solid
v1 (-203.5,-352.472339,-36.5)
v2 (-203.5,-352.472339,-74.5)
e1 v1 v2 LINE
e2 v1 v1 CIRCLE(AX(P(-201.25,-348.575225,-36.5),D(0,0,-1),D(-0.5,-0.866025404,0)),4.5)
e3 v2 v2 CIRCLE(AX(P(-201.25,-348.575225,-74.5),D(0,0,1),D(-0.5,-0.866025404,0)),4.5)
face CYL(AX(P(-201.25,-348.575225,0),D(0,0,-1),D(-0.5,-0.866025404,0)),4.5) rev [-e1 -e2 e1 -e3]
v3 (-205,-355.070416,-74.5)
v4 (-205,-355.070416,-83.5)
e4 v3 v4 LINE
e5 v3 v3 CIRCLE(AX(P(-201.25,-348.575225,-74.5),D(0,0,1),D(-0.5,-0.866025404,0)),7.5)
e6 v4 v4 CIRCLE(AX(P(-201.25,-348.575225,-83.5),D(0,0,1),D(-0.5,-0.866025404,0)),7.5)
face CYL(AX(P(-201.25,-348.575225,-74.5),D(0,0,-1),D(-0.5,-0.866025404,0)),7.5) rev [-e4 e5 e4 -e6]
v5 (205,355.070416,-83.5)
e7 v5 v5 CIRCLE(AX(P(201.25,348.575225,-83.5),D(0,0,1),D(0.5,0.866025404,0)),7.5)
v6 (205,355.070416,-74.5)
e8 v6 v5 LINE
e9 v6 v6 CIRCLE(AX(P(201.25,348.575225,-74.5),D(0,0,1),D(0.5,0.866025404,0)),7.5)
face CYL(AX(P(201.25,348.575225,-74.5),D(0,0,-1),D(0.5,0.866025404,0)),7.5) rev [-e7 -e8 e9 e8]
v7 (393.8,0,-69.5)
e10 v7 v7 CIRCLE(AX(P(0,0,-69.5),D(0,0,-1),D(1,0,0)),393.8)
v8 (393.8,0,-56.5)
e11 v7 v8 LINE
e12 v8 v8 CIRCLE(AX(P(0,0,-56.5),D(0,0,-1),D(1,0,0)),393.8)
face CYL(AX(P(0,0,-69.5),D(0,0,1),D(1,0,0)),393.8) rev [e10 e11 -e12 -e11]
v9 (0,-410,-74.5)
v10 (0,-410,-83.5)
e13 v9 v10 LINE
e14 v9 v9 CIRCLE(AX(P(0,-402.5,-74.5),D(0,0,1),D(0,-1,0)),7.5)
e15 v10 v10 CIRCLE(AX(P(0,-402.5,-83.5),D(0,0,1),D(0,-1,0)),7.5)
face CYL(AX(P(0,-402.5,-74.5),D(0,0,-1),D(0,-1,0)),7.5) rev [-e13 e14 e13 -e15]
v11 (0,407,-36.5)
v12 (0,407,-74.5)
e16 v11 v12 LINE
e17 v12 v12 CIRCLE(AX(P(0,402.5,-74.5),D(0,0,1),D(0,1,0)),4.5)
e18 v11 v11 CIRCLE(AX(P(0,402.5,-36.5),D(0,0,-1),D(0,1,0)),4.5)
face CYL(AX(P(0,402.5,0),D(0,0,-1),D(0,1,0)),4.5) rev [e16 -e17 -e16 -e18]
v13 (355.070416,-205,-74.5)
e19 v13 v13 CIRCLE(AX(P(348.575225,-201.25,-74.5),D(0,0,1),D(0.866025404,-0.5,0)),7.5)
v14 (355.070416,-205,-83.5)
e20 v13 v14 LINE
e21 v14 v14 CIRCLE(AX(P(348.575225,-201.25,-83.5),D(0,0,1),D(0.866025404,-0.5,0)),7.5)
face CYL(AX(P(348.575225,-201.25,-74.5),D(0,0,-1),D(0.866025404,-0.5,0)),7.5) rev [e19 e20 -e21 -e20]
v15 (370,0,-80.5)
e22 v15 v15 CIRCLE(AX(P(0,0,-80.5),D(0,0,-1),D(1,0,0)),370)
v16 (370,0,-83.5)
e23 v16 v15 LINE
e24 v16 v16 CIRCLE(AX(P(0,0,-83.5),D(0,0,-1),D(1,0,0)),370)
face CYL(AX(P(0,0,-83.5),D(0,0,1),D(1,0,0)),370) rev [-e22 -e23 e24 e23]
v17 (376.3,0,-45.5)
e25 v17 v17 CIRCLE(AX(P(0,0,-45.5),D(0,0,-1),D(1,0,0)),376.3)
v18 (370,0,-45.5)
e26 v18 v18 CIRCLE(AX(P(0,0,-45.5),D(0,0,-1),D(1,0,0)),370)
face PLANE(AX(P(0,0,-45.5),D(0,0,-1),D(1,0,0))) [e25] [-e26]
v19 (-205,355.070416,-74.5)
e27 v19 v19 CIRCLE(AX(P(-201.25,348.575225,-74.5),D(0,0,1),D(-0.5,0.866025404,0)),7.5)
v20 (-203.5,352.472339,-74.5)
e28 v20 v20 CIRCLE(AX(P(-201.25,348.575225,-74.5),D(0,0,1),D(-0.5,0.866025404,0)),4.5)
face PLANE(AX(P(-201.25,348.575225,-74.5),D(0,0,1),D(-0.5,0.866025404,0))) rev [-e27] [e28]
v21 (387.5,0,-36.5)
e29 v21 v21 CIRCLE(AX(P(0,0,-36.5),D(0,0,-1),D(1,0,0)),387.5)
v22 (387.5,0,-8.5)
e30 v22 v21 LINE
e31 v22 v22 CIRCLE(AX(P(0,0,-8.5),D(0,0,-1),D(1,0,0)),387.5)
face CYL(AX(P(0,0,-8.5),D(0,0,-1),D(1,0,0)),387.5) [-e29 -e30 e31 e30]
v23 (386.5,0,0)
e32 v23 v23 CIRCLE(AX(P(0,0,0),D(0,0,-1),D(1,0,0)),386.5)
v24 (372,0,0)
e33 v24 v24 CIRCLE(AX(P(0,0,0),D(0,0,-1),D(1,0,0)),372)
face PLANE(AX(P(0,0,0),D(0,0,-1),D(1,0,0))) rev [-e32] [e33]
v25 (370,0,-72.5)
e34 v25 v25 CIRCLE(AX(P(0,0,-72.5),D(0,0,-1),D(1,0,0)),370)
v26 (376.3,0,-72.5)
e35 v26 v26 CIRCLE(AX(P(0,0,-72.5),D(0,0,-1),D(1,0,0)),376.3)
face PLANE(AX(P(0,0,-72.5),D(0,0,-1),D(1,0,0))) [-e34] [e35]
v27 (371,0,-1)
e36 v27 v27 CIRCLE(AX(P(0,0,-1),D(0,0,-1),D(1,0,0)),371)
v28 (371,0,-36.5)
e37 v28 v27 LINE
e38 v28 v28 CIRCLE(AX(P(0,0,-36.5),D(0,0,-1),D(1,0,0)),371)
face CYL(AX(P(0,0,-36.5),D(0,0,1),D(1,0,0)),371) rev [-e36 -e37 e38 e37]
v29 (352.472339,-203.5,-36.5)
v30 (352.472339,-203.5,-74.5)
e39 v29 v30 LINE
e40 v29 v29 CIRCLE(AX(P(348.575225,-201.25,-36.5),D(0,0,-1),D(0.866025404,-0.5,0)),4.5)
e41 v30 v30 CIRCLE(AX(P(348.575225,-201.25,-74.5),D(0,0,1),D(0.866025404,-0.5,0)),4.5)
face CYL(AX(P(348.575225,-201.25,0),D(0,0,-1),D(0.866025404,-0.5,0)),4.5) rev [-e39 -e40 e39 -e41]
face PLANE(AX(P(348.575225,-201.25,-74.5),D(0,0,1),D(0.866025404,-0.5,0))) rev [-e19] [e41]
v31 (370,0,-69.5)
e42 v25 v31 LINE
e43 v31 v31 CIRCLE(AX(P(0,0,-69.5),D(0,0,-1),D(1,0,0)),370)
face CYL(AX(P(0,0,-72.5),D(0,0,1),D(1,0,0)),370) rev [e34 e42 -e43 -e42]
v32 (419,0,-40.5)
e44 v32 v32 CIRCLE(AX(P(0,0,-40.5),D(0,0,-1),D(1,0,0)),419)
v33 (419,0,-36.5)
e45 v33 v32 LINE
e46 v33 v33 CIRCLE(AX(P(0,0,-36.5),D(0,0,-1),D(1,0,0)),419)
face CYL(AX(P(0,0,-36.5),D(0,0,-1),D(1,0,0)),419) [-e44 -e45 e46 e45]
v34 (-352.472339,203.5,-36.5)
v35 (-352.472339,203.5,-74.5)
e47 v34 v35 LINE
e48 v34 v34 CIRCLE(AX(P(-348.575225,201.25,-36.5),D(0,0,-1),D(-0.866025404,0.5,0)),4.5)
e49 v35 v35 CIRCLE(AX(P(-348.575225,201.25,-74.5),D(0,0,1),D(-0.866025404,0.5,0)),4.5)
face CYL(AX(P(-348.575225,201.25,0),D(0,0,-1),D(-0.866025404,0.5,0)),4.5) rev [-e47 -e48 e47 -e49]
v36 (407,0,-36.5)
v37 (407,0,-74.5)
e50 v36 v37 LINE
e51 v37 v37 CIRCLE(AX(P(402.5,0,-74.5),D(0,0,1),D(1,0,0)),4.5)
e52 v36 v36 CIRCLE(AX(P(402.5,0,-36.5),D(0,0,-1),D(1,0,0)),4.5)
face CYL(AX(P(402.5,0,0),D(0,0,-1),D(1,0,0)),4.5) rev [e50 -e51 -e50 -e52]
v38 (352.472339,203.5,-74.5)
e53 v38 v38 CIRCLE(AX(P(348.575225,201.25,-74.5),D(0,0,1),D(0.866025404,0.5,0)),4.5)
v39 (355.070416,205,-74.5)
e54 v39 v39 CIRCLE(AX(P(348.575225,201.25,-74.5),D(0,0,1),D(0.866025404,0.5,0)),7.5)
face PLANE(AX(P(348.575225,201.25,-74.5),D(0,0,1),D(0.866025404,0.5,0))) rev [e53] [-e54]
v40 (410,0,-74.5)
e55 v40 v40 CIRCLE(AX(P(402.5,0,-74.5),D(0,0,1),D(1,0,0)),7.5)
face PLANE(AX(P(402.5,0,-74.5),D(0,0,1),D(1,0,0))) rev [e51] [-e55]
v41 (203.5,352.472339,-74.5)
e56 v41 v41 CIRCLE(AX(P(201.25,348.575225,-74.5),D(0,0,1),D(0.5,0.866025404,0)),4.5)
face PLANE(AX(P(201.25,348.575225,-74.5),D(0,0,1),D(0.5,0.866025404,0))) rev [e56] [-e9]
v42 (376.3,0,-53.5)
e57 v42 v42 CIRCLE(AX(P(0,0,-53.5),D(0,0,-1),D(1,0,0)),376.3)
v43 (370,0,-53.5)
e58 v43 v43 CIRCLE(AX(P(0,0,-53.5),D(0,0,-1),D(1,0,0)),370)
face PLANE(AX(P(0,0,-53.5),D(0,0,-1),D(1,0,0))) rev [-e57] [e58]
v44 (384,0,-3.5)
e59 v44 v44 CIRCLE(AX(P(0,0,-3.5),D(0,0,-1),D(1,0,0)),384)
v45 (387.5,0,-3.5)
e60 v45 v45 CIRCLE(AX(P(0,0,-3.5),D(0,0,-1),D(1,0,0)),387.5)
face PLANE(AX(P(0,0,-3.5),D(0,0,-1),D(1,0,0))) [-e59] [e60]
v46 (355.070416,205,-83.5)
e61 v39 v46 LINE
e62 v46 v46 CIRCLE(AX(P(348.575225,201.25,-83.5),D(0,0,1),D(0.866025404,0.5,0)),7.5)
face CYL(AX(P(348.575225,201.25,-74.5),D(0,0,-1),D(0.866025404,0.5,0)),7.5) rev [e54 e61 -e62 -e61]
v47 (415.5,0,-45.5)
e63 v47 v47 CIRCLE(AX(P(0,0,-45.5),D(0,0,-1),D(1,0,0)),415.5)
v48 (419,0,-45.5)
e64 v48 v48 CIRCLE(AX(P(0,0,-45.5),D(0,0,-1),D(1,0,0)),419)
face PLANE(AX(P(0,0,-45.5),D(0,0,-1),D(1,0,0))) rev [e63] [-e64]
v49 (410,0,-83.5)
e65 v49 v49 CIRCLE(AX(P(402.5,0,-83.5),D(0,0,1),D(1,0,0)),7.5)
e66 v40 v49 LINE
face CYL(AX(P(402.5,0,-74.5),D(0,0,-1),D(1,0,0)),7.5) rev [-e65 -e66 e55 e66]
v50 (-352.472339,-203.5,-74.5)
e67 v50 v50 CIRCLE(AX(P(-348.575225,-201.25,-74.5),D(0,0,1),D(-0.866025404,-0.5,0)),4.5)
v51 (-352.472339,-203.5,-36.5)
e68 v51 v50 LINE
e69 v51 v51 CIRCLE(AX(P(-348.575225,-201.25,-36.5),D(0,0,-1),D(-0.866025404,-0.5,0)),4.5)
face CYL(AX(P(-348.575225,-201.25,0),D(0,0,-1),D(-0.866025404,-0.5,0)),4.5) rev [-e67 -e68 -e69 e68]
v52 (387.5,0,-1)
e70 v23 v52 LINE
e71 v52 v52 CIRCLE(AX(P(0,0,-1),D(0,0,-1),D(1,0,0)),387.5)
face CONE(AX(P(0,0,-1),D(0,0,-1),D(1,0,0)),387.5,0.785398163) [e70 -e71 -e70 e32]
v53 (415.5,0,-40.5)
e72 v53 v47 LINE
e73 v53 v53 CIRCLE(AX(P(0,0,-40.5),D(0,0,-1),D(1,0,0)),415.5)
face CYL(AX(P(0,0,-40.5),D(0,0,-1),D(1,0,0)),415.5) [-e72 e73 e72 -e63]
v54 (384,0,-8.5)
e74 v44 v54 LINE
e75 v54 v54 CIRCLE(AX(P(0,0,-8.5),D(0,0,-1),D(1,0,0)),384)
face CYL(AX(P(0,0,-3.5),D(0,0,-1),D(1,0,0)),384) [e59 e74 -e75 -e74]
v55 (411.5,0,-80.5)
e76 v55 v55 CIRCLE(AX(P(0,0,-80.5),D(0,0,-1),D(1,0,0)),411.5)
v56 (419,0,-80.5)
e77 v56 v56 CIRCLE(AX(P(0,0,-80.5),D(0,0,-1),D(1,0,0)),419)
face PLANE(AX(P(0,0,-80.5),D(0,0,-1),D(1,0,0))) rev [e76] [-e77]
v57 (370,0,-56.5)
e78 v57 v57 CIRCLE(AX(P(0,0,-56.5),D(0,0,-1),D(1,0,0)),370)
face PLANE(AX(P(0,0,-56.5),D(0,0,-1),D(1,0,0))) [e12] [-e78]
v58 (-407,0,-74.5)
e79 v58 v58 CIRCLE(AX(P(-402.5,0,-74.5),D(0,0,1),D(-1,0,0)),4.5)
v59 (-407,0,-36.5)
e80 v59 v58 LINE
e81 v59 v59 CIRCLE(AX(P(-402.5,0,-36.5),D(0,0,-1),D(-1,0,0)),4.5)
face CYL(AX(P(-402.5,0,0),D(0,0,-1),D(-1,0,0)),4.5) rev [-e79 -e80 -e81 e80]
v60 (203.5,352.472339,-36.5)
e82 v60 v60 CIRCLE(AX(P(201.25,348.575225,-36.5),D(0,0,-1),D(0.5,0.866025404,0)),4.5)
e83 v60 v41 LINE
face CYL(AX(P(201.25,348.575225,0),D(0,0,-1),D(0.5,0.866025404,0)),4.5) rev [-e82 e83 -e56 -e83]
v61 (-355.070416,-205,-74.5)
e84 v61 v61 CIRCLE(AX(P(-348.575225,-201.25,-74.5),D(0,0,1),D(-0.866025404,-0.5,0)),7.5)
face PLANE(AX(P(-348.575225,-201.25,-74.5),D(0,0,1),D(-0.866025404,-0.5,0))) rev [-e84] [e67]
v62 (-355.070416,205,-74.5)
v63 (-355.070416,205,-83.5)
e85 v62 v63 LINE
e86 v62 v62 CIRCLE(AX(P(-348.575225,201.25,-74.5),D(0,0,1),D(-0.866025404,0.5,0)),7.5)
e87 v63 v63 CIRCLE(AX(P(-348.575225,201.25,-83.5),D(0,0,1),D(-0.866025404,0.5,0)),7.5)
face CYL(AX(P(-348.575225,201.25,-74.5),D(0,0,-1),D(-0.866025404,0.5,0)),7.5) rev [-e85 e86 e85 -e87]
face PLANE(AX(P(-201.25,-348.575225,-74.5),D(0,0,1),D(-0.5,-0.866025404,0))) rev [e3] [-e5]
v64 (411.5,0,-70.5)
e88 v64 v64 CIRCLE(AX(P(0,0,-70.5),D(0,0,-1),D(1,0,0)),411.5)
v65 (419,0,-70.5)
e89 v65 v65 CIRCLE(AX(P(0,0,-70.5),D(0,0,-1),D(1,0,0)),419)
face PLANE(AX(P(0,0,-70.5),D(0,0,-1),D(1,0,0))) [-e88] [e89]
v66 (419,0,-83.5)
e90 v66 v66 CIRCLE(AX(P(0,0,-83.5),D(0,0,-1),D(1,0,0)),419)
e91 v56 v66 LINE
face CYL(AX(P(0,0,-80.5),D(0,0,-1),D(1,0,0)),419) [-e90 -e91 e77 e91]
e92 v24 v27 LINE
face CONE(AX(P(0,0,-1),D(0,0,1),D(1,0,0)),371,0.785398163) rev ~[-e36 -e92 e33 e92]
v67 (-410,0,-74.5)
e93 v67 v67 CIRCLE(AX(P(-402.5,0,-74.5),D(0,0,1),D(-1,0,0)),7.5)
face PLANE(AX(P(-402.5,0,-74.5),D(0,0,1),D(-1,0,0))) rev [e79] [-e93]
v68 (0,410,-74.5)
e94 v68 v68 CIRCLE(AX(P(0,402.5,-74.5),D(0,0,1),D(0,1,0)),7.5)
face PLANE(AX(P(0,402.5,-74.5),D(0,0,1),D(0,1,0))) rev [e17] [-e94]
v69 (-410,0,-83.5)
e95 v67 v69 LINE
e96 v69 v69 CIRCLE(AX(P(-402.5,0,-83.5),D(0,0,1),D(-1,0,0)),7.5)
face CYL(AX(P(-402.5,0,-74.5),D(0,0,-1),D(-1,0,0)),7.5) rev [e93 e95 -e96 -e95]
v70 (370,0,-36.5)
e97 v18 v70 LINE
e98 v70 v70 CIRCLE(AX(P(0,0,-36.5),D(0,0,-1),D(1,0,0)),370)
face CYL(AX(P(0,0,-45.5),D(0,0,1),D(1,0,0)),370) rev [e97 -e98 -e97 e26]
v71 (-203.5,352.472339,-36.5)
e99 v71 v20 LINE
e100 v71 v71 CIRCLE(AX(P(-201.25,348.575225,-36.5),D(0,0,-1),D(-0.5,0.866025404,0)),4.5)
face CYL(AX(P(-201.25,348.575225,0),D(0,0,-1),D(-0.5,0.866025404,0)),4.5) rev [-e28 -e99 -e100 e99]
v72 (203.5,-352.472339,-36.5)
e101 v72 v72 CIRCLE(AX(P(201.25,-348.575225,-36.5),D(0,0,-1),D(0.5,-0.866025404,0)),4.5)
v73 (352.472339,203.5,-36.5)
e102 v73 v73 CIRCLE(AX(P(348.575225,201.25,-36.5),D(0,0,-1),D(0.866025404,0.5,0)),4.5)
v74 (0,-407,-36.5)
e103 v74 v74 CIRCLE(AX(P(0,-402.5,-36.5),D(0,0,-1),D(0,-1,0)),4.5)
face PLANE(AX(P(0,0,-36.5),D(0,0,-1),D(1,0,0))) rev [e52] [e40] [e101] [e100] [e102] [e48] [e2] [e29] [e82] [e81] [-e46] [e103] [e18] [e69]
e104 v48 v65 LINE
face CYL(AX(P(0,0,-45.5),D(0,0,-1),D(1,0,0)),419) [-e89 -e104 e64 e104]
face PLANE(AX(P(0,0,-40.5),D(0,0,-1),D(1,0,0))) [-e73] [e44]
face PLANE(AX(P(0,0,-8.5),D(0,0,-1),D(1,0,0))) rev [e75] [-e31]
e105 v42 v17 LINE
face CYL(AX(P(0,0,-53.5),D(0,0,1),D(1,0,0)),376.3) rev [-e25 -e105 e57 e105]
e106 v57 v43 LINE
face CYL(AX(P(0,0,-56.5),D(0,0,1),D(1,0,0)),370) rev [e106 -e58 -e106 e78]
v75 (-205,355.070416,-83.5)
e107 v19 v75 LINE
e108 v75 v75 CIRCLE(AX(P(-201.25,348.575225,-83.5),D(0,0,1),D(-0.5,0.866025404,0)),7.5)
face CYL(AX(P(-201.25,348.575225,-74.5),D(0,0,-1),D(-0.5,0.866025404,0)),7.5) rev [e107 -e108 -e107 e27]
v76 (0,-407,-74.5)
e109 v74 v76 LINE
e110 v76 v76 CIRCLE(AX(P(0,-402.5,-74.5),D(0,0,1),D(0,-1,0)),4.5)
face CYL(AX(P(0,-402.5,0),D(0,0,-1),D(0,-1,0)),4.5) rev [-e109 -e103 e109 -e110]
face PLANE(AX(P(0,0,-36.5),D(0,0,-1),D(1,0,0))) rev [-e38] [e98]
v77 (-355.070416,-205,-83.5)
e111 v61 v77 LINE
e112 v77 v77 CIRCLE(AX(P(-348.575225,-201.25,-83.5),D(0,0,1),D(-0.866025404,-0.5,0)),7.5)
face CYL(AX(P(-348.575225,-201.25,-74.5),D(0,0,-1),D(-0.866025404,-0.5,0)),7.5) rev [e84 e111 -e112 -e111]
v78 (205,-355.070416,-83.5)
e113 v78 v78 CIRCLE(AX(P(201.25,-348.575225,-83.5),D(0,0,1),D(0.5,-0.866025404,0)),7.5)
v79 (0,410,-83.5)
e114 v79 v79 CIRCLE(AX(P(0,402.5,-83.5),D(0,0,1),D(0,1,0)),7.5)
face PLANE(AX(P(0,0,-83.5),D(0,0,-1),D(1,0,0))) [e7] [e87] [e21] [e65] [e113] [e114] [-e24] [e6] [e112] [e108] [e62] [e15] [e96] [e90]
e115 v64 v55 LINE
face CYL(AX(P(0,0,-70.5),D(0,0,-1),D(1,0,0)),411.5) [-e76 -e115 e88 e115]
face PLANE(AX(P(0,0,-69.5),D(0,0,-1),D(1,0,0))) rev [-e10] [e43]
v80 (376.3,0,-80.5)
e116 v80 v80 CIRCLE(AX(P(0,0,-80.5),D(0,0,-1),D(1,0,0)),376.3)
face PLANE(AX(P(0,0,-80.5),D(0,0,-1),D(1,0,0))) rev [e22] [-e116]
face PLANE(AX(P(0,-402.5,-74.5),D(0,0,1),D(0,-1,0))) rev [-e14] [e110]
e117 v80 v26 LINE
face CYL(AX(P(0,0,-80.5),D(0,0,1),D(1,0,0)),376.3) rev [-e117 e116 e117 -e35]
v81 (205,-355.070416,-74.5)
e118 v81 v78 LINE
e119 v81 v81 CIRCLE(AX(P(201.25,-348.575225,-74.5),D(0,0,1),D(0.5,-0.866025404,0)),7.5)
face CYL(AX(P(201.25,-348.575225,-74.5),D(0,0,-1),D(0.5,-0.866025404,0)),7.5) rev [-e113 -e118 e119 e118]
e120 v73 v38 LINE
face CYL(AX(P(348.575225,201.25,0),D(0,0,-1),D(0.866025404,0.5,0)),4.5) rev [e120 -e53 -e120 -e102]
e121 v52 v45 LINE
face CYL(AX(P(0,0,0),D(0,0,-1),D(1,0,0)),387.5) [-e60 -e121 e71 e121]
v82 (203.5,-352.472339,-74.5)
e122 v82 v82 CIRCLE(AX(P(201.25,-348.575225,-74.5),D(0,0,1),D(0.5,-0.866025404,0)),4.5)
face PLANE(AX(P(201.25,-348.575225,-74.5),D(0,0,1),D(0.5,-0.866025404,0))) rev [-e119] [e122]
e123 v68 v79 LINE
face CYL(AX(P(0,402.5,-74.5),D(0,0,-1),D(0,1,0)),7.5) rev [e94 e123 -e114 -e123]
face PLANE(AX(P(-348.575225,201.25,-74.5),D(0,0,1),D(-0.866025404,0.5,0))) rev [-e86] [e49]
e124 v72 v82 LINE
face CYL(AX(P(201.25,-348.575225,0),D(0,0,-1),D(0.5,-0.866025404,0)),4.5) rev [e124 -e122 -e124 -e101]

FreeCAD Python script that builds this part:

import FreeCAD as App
import Part
import Sketcher
Q = App.Units.Quantity


def edges_at(feature, points):
    """Names of the edges that pass closest to the given points."""
    edges = feature.Shape.Edges
    near = lambda p: min(range(len(edges)), key=lambda i: edges[i].distToShape(Part.Vertex(*p))[0])
    return sorted({f"Edge{near(p) + 1}" for p in points})


def add_polygon(sketch, points):
    """Adds a closed chain of lines whose ends are joined by coincident constraints."""
    first, n = sketch.GeometryCount, len(points)
    for a, b in zip(points, points[1:] + points[:1]):
        sketch.addGeometry(Part.LineSegment(App.Vector(*a, 0), App.Vector(*b, 0)), False)
    for i in range(n):
        sketch.addConstraint(Sketcher.Constraint("Coincident", first + i, 2, first + (i + 1) % n, 1))

doc = App.newDocument("Part")
body = doc.addObject("PartDesign::Body", "Body")

# Sketch on YZ plane
sketch1 = body.newObject("Sketcher::SketchObject", "Sketch")
sketch1.AttachmentSupport = (doc.getObject("YZ_Plane"), [""])
sketch1.MapMode = "FlatFace"
add_polygon(sketch1, [(387.5, 0), (371, 0), (371, -36.5), (370, -36.5), (370, -45.5), (376.3, -45.5), (376.3, -53.5), (370, -53.5), (370, -56.5), (393.8, -56.5), (393.8, -69.5), (370, -69.5), (370, -72.5), (376.3, -72.5), (376.3, -80.5), (370, -80.5), (370, -83.5), (419, -83.5), (419, -80.5), (411.5, -80.5), (411.5, -70.5), (419, -70.5), (419, -45.5), (415.5, -45.5), (415.5, -40.5), (419, -40.5), (419, -36.5), (387.5, -36.5), (387.5, -8.5), (384, -8.5), (384, -3.5), (387.5, -3.5)])  # lines 0-31
sketch1.addConstraint([
    Sketcher.Constraint("Horizontal", 0),
    Sketcher.Constraint("Vertical", 1),
    Sketcher.Constraint("Horizontal", 2),
    Sketcher.Constraint("Vertical", 3),
    Sketcher.Constraint("Horizontal", 4),
    Sketcher.Constraint("Vertical", 5),
    Sketcher.Constraint("Horizontal", 6),
    Sketcher.Constraint("Vertical", 7),
    Sketcher.Constraint("Horizontal", 8),
    Sketcher.Constraint("Vertical", 9),
    Sketcher.Constraint("Horizontal", 10),
    Sketcher.Constraint("Vertical", 11),
    Sketcher.Constraint("Horizontal", 12),
    Sketcher.Constraint("Vertical", 13),
    Sketcher.Constraint("Horizontal", 14),
    Sketcher.Constraint("Vertical", 15),
    Sketcher.Constraint("Horizontal", 16),
    Sketcher.Constraint("Vertical", 17),
    Sketcher.Constraint("Horizontal", 18),
    Sketcher.Constraint("Vertical", 19),
    Sketcher.Constraint("Horizontal", 20),
    Sketcher.Constraint("Vertical", 21),
    Sketcher.Constraint("Horizontal", 22),
    Sketcher.Constraint("Vertical", 23),
    Sketcher.Constraint("Horizontal", 24),
    Sketcher.Constraint("Vertical", 25),
    Sketcher.Constraint("Horizontal", 26),
    Sketcher.Constraint("Vertical", 27),
    Sketcher.Constraint("Horizontal", 28),
    Sketcher.Constraint("Vertical", 29),
    Sketcher.Constraint("Horizontal", 30),
    Sketcher.Constraint("Vertical", 31),
    Sketcher.Constraint("PointOnObject", 0, 2, -1),
    Sketcher.Constraint("Horizontal", 14, 2, 17, 2),
    Sketcher.Constraint("Horizontal", 4, 2, 21, 2),
    Sketcher.Constraint("Horizontal", 2, 2, 25, 2),
    Sketcher.Constraint("Vertical", 3, 2, 6, 2),
    Sketcher.Constraint("Vertical", 7, 2, 10, 2),
    Sketcher.Constraint("Vertical", 5, 2, 12, 2),
    Sketcher.Constraint("Vertical", 11, 2, 14, 2),
    Sketcher.Constraint("Vertical", 17, 2, 20, 2),
    Sketcher.Constraint("Vertical", 21, 2, 24, 2),
    Sketcher.Constraint("Vertical", 27, 2, 30, 2),
    Sketcher.Constraint("Equal", 24, 28),
    Sketcher.Constraint("Equal", 7, 11),
    Sketcher.Constraint("Equal", 5, 13),
    Sketcher.Constraint("Equal", 11, 15),
    Sketcher.Constraint("Equal", 23, 29),
    Sketcher.Constraint("Equal", 30, 31),
    Sketcher.Constraint("DistanceX", 2, 2, 2, 1, Q("1 mm")),
    Sketcher.Constraint("DistanceX", 16, 1, 16, 2, Q("49 mm")),
    Sketcher.Constraint("DistanceY", 3, 2, 3, 1, Q("9 mm")),
    Sketcher.Constraint("DistanceY", 5, 2, 5, 1, Q("8 mm")),
    Sketcher.Constraint("DistanceY", 7, 2, 7, 1, Q("3 mm")),
    Sketcher.Constraint("DistanceY", 9, 2, 9, 1, Q("13 mm")),
    Sketcher.Constraint("DistanceY", 19, 1, 19, 2, Q("10 mm")),
    Sketcher.Constraint("DistanceY", 23, 1, 23, 2, Q("5 mm")),
    Sketcher.Constraint("DistanceY", 27, 1, 27, 2, Q("28 mm")),
    Sketcher.Constraint("DistanceX", 0, 2, 0, 1, Q("16.5 mm")),
    Sketcher.Constraint("DistanceX", 4, 1, 4, 2, Q("6.3 mm")),
    Sketcher.Constraint("DistanceX", 8, 1, 8, 2, Q("23.8 mm")),
    Sketcher.Constraint("DistanceX", 18, 2, 18, 1, Q("7.5 mm")),
    Sketcher.Constraint("DistanceX", 22, 2, 22, 1, Q("3.5 mm")),
    Sketcher.Constraint("DistanceX", -1, 1, 0, 2, Q("371 mm")),
])
revolution = body.newObject("PartDesign::Revolution", "Revolution")
revolution.Profile = sketch1
revolution.ReferenceAxis = (sketch1, ["V_Axis"])
revolution.Angle = 360
doc.recompute()

chamfer = body.newObject("PartDesign::Chamfer", "Chamfer")
chamfer.Base = (revolution, edges_at(revolution, [(-371, 0, 0), (-387.5, 0, 0)]))
chamfer.Size = 1

# Sketch on YZ plane
sketch2 = body.newObject("Sketcher::SketchObject", "Sketch001")
sketch2.AttachmentSupport = (doc.getObject("YZ_Plane"), [""])
sketch2.MapMode = "FlatFace"
add_polygon(sketch2, [(402.5, 2.703873), (402.5, -83.5), (410, -83.5), (410, -74.5), (407, -74.5), (407, 0)])  # lines 0-5
sketch2.addGeometry(Part.LineSegment(App.Vector(402.5, -83.5, 0), App.Vector(402.5, 2.703873, 0)), True)  # axis
sketch2.addConstraint([
    Sketcher.Constraint("Vertical", 0),
    Sketcher.Constraint("Horizontal", 1),
    Sketcher.Constraint("Vertical", 2),
    Sketcher.Constraint("Horizontal", 3),
    Sketcher.Constraint("Vertical", 4),
    Sketcher.Constraint("Vertical", 6),
    Sketcher.Constraint("Coincident", 6, 1, 0, 2),
    Sketcher.Constraint("PointOnObject", 4, 2, -1),
    Sketcher.Constraint("Equal", 0, 6),
    Sketcher.Constraint("DistanceX", 3, 2, 3, 1, Q("3 mm")),
    Sketcher.Constraint("DistanceY", 2, 1, 2, 2, Q("9 mm")),
    Sketcher.Constraint("Angle", 5, Q("149 deg")),
    Sketcher.Constraint("DistanceX", 1, 1, 1, 2, Q("7.5 mm")),
    Sketcher.Constraint("DistanceY", 4, 1, 4, 2, Q("74.5 mm")),
    Sketcher.Constraint("DistanceX", -1, 1, 1, 2, Q("410 mm")),
])
groove = body.newObject("PartDesign::Groove", "Groove")
groove.Profile = sketch2
groove.ReferenceAxis = (sketch2, ["Axis0"])
groove.Angle = 360
doc.recompute()

polarpattern = body.newObject("PartDesign::PolarPattern", "PolarPattern")
polarpattern.Originals = [groove]
polarpattern.Axis = (doc.getObject("Z_Axis"), [""])
polarpattern.Angle = 360
polarpattern.Occurrences = 12
body.Tip = polarpattern

doc.recompute()
